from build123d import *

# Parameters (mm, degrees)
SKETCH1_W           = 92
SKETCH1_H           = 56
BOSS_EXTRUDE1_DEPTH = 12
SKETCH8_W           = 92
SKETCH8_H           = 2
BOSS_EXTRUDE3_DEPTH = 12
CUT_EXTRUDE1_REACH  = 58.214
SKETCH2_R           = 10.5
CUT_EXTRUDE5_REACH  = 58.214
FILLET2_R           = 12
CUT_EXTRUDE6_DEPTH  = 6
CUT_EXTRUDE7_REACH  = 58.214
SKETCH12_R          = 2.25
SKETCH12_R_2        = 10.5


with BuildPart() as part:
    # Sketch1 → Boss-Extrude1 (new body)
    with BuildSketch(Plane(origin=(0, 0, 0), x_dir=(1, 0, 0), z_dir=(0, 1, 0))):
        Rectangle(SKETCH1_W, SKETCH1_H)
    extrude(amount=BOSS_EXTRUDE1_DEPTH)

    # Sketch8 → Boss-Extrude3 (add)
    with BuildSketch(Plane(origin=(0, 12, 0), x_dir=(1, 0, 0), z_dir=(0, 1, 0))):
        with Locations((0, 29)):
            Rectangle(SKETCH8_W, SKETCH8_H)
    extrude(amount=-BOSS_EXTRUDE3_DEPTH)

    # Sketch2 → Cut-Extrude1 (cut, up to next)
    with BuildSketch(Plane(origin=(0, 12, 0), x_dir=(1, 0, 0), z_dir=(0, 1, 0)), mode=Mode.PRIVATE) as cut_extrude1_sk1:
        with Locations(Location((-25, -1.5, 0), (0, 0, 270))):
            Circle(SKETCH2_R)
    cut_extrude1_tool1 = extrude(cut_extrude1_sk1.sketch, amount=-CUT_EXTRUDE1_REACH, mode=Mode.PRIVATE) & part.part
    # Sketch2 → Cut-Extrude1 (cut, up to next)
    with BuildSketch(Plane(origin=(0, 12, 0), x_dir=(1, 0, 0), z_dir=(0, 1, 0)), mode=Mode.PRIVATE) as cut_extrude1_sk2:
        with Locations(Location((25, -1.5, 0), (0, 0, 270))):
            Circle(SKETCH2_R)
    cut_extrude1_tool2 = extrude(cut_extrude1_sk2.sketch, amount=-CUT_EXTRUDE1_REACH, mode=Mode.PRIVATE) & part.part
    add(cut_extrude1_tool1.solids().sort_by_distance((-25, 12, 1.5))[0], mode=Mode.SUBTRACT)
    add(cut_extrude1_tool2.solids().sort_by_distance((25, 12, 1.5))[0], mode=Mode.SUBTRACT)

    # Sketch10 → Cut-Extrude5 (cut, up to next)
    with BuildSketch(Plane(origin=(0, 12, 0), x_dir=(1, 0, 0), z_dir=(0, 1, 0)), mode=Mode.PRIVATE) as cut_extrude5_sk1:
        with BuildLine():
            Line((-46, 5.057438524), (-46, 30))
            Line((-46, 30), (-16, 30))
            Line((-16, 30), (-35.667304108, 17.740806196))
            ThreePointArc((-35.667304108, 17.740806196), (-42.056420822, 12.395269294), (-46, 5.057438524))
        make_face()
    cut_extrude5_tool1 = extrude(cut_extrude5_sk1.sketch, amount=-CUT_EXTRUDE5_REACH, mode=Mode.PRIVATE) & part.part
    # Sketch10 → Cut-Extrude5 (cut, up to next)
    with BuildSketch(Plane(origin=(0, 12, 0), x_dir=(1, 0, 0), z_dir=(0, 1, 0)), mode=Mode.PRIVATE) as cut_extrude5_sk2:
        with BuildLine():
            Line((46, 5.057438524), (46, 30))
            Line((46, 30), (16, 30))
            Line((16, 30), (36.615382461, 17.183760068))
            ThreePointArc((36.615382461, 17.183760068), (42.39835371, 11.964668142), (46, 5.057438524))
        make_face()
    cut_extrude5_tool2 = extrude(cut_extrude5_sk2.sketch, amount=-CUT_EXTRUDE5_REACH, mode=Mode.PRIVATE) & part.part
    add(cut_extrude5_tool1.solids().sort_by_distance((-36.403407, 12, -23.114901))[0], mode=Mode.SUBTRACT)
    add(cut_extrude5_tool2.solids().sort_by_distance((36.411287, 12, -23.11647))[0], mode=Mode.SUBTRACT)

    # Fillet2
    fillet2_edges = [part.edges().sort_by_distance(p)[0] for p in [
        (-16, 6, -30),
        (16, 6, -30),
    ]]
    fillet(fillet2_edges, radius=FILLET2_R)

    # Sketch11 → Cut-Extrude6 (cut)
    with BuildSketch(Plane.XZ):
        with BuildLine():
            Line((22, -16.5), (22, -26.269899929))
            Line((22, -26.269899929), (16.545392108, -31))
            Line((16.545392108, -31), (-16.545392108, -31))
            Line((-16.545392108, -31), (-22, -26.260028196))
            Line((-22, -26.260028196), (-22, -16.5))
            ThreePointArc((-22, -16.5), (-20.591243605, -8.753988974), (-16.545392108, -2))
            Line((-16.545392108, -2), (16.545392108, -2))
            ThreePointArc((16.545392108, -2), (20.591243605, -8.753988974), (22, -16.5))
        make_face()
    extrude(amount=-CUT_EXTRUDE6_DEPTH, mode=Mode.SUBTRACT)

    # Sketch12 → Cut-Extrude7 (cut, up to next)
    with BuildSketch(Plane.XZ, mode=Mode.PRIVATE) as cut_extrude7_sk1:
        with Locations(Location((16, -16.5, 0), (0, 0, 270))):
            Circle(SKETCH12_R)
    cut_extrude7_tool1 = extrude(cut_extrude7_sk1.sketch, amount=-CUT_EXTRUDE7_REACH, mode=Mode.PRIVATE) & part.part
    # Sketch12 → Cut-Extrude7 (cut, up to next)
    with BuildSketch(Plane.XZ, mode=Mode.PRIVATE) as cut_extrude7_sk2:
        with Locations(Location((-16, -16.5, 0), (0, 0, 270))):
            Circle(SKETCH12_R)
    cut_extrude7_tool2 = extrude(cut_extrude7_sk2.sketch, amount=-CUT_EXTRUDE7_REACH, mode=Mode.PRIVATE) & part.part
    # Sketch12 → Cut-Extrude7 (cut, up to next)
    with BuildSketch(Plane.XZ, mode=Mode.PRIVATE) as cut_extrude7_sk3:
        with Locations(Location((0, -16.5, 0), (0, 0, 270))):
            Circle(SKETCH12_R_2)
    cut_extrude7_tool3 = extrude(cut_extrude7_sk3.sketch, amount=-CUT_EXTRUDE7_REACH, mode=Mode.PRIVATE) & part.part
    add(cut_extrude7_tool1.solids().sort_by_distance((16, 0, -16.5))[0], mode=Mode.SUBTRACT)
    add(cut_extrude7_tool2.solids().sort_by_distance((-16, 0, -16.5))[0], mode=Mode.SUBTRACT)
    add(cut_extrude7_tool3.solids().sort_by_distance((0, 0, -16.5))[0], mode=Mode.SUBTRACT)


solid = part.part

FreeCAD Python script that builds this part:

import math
import FreeCAD as App
import Part
import Sketcher

V = App.Vector


def edges_at(feature, points):
    """Names of the edges that pass closest to the given points."""
    edges = feature.Shape.Edges
    near = lambda p: min(range(len(edges)), key=lambda i: edges[i].distToShape(Part.Vertex(*p))[0])
    return sorted({f"Edge{near(p) + 1}" for p in points})

doc = App.newDocument("Part")
params = doc.addObject("Spreadsheet::Sheet", "Params")
for row, (alias, value) in enumerate([
    ("sketch1_width", "92 mm"),
    ("sketch1_height", "56 mm"),
    ("pad1_length", "12 mm"),
    ("sketch2_width", "92 mm"),
    ("sketch2_height", "2 mm"),
    ("pad2_length", "12 mm"),
    ("sketch3_diameter", "21 mm"),
    ("sketch4_diameter", "21 mm"),
    ("sketch5_radius", "22 mm"),
    ("sketch5_width", "30 mm"),
    ("sketch6_radius", "22 mm"),
    ("sketch6_width", "30 mm"),
    ("fillet_radius", "12 mm"),
    ("sketch7_radius", "22 mm"),
    ("pocket5_length", "6 mm"),
    ("sketch8_diameter", "4.5 mm"),
    ("pocket6_length", "12 mm"),
    ("sketch9_diameter", "4.5 mm"),
    ("pocket7_length", "12 mm"),
    ("sketch10_diameter", "21 mm"),
    ("pocket8_length", "12 mm"),
], start=1):
    params.set(f"A{row}", alias)
    params.set(f"B{row}", "=" + value)
    params.setAlias(f"B{row}", alias)

body = doc.addObject("PartDesign::Body", "Body")

# Sketch on XZ plane
sketch1 = body.newObject("Sketcher::SketchObject", "Sketch")
sketch1.AttachmentSupport = (doc.getObject("XZ_Plane"), [""])
sketch1.MapMode = "FlatFace"
sketch1.addGeometry([
    Part.LineSegment(V(-46, -28, 0), V(-46, 28, 0)),
    Part.LineSegment(V(-46, 28, 0), V(46, 28, 0)),
    Part.LineSegment(V(46, 28, 0), V(46, -28, 0)),
    Part.LineSegment(V(46, -28, 0), V(-46, -28, 0)),
], False)
sketch1.addConstraint([
    Sketcher.Constraint("Coincident", 0, 2, 1, 1),
    Sketcher.Constraint("Coincident", 1, 2, 2, 1),
    Sketcher.Constraint("Coincident", 2, 2, 3, 1),
    Sketcher.Constraint("Coincident", 3, 2, 0, 1),
    Sketcher.Constraint("Vertical", 0),
    Sketcher.Constraint("Horizontal", 1),
    Sketcher.Constraint("Vertical", 2),
    Sketcher.Constraint("Horizontal", 3),
    Sketcher.Constraint("Symmetric", 0, 2, 2, 2, -1, 1),
    Sketcher.Constraint("DistanceX", 1, 1, 1, 2, 92.0),
    Sketcher.Constraint("DistanceY", 0, 1, 0, 2, 56.0),
])
sketch1.setExpression("Constraints[9]", "Params.sketch1_width")
sketch1.setExpression("Constraints[10]", "Params.sketch1_height")
pad1 = body.newObject("PartDesign::Pad", "Pad")
pad1.Profile = sketch1
pad1.setExpression("Length", "Params.pad1_length")
pad1.Reversed = True

# Sketch on XZ plane
sketch2 = body.newObject("Sketcher::SketchObject", "Sketch001")
sketch2.AttachmentSupport = (doc.getObject("XZ_Plane"), [""])
sketch2.MapMode = "FlatFace"
sketch2.AttachmentOffset = App.Placement(V(0, 0, -12), App.Rotation())
sketch2.addGeometry([
    Part.LineSegment(V(-46, -30, 0), V(-46, -28, 0)),
    Part.LineSegment(V(-46, -28, 0), V(46, -28, 0)),
    Part.LineSegment(V(46, -28, 0), V(46, -30, 0)),
    Part.LineSegment(V(46, -30, 0), V(-46, -30, 0)),
], False)
sketch2.addConstraint([
    Sketcher.Constraint("Coincident", 0, 2, 1, 1),
    Sketcher.Constraint("Coincident", 1, 2, 2, 1),
    Sketcher.Constraint("Coincident", 2, 2, 3, 1),
    Sketcher.Constraint("Coincident", 3, 2, 0, 1),
    Sketcher.Constraint("Vertical", 0),
    Sketcher.Constraint("Horizontal", 1),
    Sketcher.Constraint("Vertical", 2),
    Sketcher.Constraint("Horizontal", 3),
    Sketcher.Constraint("DistanceX", 1, 1, 1, 2, 92.0),
    Sketcher.Constraint("DistanceY", 0, 1, 0, 2, 2.0),
    Sketcher.Constraint("DistanceX", 0, 2, -1, 1, 46.0),
    Sketcher.Constraint("DistanceY", 0, 2, -1, 1, 28.0),
])
sketch2.setExpression("Constraints[8]", "Params.sketch2_width")
sketch2.setExpression("Constraints[9]", "Params.sketch2_height")
pad2 = body.newObject("PartDesign::Pad", "Pad001")
pad2.Profile = sketch2
pad2.setExpression("Length", "Params.pad2_length")

# Sketch on XZ plane
sketch3 = body.newObject("Sketcher::SketchObject", "Sketch002")
sketch3.AttachmentSupport = (doc.getObject("XZ_Plane"), [""])
sketch3.MapMode = "FlatFace"
sketch3.AttachmentOffset = App.Placement(V(0, 0, -12), App.Rotation())
sketch3.addGeometry(Part.Circle(V(-25, 1.5, 0), V(0, 0, 1), 10.5), False)
sketch3.addConstraint([
    Sketcher.Constraint("Diameter", 0, 21.0),
    Sketcher.Constraint("DistanceX", 0, 3, -1, 1, 25.0),
    Sketcher.Constraint("DistanceY", -1, 1, 0, 3, 1.5),
])
sketch3.setExpression("Constraints[0]", "Params.sketch3_diameter")
pocket1 = body.newObject("PartDesign::Pocket", "Pocket")
pocket1.Profile = sketch3
pocket1.Type = "UpToFirst"
pocket1.Reversed = True

# Sketch on XZ plane
sketch4 = body.newObject("Sketcher::SketchObject", "Sketch003")
sketch4.AttachmentSupport = (doc.getObject("XZ_Plane"), [""])
sketch4.MapMode = "FlatFace"
sketch4.AttachmentOffset = App.Placement(V(0, 0, -12), App.Rotation())
sketch4.addGeometry(Part.Circle(V(25, 1.5, 0), V(0, 0, 1), 10.5), False)
sketch4.addConstraint([
    Sketcher.Constraint("Diameter", 0, 21.0),
    Sketcher.Constraint("DistanceX", -1, 1, 0, 3, 25.0),
    Sketcher.Constraint("DistanceY", -1, 1, 0, 3, 1.5),
])
sketch4.setExpression("Constraints[0]", "Params.sketch4_diameter")
pocket2 = body.newObject("PartDesign::Pocket", "Pocket001")
pocket2.Profile = sketch4
pocket2.Type = "UpToFirst"
pocket2.Reversed = True

# Sketch on XZ plane
sketch5 = body.newObject("Sketcher::SketchObject", "Sketch004")
sketch5.AttachmentSupport = (doc.getObject("XZ_Plane"), [""])
sketch5.MapMode = "FlatFace"
sketch5.AttachmentOffset = App.Placement(V(0, 0, -12), App.Rotation())
sketch5.addGeometry([
    Part.LineSegment(V(-46, -30, 0), V(-46, -5.057439, 0)),
    Part.ArcOfCircle(Part.Circle(V(-25, 1.5, 0), V(0, 0, 1), 22), math.radians(-162.658557), math.radians(-119.004444)),
    Part.LineSegment(V(-35.667304, -17.740806, 0), V(-16, -30, 0)),
    Part.LineSegment(V(-16, -30, 0), V(-46, -30, 0)),
], False)
sketch5.addConstraint([
    Sketcher.Constraint("Coincident", 0, 2, 1, 1),
    Sketcher.Constraint("Coincident", 1, 2, 2, 1),
    Sketcher.Constraint("Coincident", 2, 2, 3, 1),
    Sketcher.Constraint("Coincident", 3, 2, 0, 1),
    Sketcher.Constraint("Vertical", 0),
    Sketcher.Constraint("Horizontal", 3),
    Sketcher.Constraint("Radius", 1, 22.0),
    Sketcher.Constraint("DistanceX", 3, 2, 3, 1, 30.0),
    Sketcher.Constraint("DistanceX", 1, 3, -1, 1, 25.0),
    Sketcher.Constraint("DistanceX", 0, 2, -1, 1, 46.0),
    Sketcher.Constraint("DistanceY", 2, 2, -1, 1, 30.0),
    Sketcher.Constraint("DistanceY", -1, 1, 1, 3, 1.5),
    Sketcher.Constraint("Distance", 2, 23.175217),
])
sketch5.setExpression("Constraints[6]", "Params.sketch5_radius")
sketch5.setExpression("Constraints[7]", "Params.sketch5_width")
pocket3 = body.newObject("PartDesign::Pocket", "Pocket002")
pocket3.Profile = sketch5
pocket3.Type = "UpToFirst"
pocket3.Reversed = True

# Sketch on XZ plane
sketch6 = body.newObject("Sketcher::SketchObject", "Sketch005")
sketch6.AttachmentSupport = (doc.getObject("XZ_Plane"), [""])
sketch6.MapMode = "FlatFace"
sketch6.AttachmentOffset = App.Placement(V(0, 0, -12), App.Rotation())
sketch6.addGeometry([
    Part.LineSegment(V(46, -5.057439, 0), V(46, -30, 0)),
    Part.LineSegment(V(46, -30, 0), V(16, -30, 0)),
    Part.LineSegment(V(16, -30, 0), V(36.615382, -17.18376, 0)),
    Part.ArcOfCircle(Part.Circle(V(25, 1.5, 0), V(0, 0, 1), 22), math.radians(-58.131472), math.radians(-17.341443)),
], False)
sketch6.addConstraint([
    Sketcher.Constraint("Coincident", 0, 2, 1, 1),
    Sketcher.Constraint("Coincident", 1, 2, 2, 1),
    Sketcher.Constraint("Tangent", 2, 2, 3, 1),
    Sketcher.Constraint("Coincident", 3, 2, 0, 1),
    Sketcher.Constraint("Vertical", 0),
    Sketcher.Constraint("Horizontal", 1),
    Sketcher.Constraint("Radius", 3, 22.0),
    Sketcher.Constraint("DistanceX", 1, 2, 1, 1, 30.0),
    Sketcher.Constraint("DistanceX", -1, 1, 3, 3, 25.0),
    Sketcher.Constraint("DistanceX", -1, 1, 0, 2, 46.0),
    Sketcher.Constraint("DistanceY", 0, 2, -1, 1, 30.0),
    Sketcher.Constraint("DistanceY", -1, 1, 3, 3, 1.5),
])
sketch6.setExpression("Constraints[6]", "Params.sketch6_radius")
sketch6.setExpression("Constraints[7]", "Params.sketch6_width")
pocket4 = body.newObject("PartDesign::Pocket", "Pocket003")
pocket4.Profile = sketch6
pocket4.Type = "UpToFirst"
pocket4.Reversed = True
doc.recompute()

fillet = body.newObject("PartDesign::Fillet", "Fillet")
fillet.Base = (pocket4, edges_at(pocket4, [(-16, 6, -30), (16, 6, -30)]))
fillet.setExpression("Radius", "Params.fillet_radius")

# Sketch on XZ plane
sketch7 = body.newObject("Sketcher::SketchObject", "Sketch006")
sketch7.AttachmentSupport = (doc.getObject("XZ_Plane"), [""])
sketch7.MapMode = "FlatFace"
sketch7.addGeometry([
    Part.LineSegment(V(22, -26.2699, 0), V(22, -16.5, 0)),  # 0
    Part.ArcOfCircle(Part.Circle(V(0, -16.5, 0), V(0, 0, 1), 22), math.radians(0), math.radians(41.230577)),  # 1
    Part.LineSegment(V(16.545392, -2, 0), V(-16.545392, -2, 0)),  # 2
    Part.ArcOfCircle(Part.Circle(V(0, -16.5, 0), V(0, 0, 1), 22), math.radians(138.769423), math.radians(180)),  # 3
    Part.LineSegment(V(-22, -16.5, 0), V(-22, -26.260028, 0)),  # 4
    Part.LineSegment(V(-22, -26.260028, 0), V(-16.545392, -31, 0)),  # 5
    Part.LineSegment(V(-16.545392, -31, 0), V(16.545392, -31, 0)),  # 6
    Part.LineSegment(V(16.545392, -31, 0), V(22, -26.2699, 0)),  # 7
], False)
sketch7.addConstraint([
    Sketcher.Constraint("Tangent", 0, 2, 1, 1),
    Sketcher.Constraint("Coincident", 1, 2, 2, 1),
    Sketcher.Constraint("Coincident", 2, 2, 3, 1),
    Sketcher.Constraint("Tangent", 3, 2, 4, 1),
    Sketcher.Constraint("Coincident", 4, 2, 5, 1),
    Sketcher.Constraint("Coincident", 5, 2, 6, 1),
    Sketcher.Constraint("Coincident", 6, 2, 7, 1),
    Sketcher.Constraint("Coincident", 7, 2, 0, 1),
    Sketcher.Constraint("Vertical", 0),
    Sketcher.Constraint("Horizontal", 2),
    Sketcher.Constraint("Vertical", 4),
    Sketcher.Constraint("Horizontal", 6),
    Sketcher.Constraint("Coincident", 3, 3, 1, 3),
    Sketcher.Constraint("Equal", 1, 3),
    Sketcher.Constraint("PointOnObject", 1, 3, -2),
    Sketcher.Constraint("Vertical", 2, 2, 5, 2),
    Sketcher.Constraint("Vertical", 1, 2, 6, 2),
    Sketcher.Constraint("Radius", 1, 22.0),
    Sketcher.Constraint("DistanceY", 1, 2, -1, 1, 2.0),
    Sketcher.Constraint("DistanceY", 5, 2, -1, 1, 31.0),
    Sketcher.Constraint("DistanceY", 1, 3, -1, 1, 16.5),
    Sketcher.Constraint("DistanceY", 0, 1, 0, 2, 9.7699),
    Sketcher.Constraint("DistanceY", 4, 2, 4, 1, 9.760028),
])
sketch7.setExpression("Constraints[17]", "Params.sketch7_radius")
pocket5 = body.newObject("PartDesign::Pocket", "Pocket004")
pocket5.Profile = sketch7
pocket5.setExpression("Length", "Params.pocket5_length")

# Sketch on XZ plane
sketch8 = body.newObject("Sketcher::SketchObject", "Sketch007")
sketch8.AttachmentSupport = (doc.getObject("XZ_Plane"), [""])
sketch8.MapMode = "FlatFace"
sketch8.addGeometry(Part.Circle(V(16, -16.5, 0), V(0, 0, 1), 2.25), False)
sketch8.addConstraint([
    Sketcher.Constraint("Diameter", 0, 4.5),
    Sketcher.Constraint("DistanceX", -1, 1, 0, 3, 16.0),
    Sketcher.Constraint("DistanceY", 0, 3, -1, 1, 16.5),
])
sketch8.setExpression("Constraints[0]", "Params.sketch8_diameter")
pocket6 = body.newObject("PartDesign::Pocket", "Pocket005")
pocket6.Profile = sketch8
pocket6.setExpression("Length", "Params.pocket6_length")

# Sketch on XZ plane
sketch9 = body.newObject("Sketcher::SketchObject", "Sketch008")
sketch9.AttachmentSupport = (doc.getObject("XZ_Plane"), [""])
sketch9.MapMode = "FlatFace"
sketch9.addGeometry(Part.Circle(V(-16, -16.5, 0), V(0, 0, 1), 2.25), False)
sketch9.addConstraint([
    Sketcher.Constraint("Diameter", 0, 4.5),
    Sketcher.Constraint("DistanceX", 0, 3, -1, 1, 16.0),
    Sketcher.Constraint("DistanceY", 0, 3, -1, 1, 16.5),
])
sketch9.setExpression("Constraints[0]", "Params.sketch9_diameter")
pocket7 = body.newObject("PartDesign::Pocket", "Pocket006")
pocket7.Profile = sketch9
pocket7.setExpression("Length", "Params.pocket7_length")

# Sketch on XZ plane
sketch10 = body.newObject("Sketcher::SketchObject", "Sketch009")
sketch10.AttachmentSupport = (doc.getObject("XZ_Plane"), [""])
sketch10.MapMode = "FlatFace"
sketch10.addGeometry(Part.Circle(V(0, -16.5, 0), V(0, 0, 1), 10.5), False)
sketch10.addConstraint([
    Sketcher.Constraint("PointOnObject", 0, 3, -2),
    Sketcher.Constraint("Diameter", 0, 21.0),
    Sketcher.Constraint("DistanceY", 0, 3, -1, 1, 16.5),
])
sketch10.setExpression("Constraints[1]", "Params.sketch10_diameter")
pocket8 = body.newObject("PartDesign::Pocket", "Pocket007")
pocket8.Profile = sketch10
pocket8.setExpression("Length", "Params.pocket8_length")

doc.recompute()
